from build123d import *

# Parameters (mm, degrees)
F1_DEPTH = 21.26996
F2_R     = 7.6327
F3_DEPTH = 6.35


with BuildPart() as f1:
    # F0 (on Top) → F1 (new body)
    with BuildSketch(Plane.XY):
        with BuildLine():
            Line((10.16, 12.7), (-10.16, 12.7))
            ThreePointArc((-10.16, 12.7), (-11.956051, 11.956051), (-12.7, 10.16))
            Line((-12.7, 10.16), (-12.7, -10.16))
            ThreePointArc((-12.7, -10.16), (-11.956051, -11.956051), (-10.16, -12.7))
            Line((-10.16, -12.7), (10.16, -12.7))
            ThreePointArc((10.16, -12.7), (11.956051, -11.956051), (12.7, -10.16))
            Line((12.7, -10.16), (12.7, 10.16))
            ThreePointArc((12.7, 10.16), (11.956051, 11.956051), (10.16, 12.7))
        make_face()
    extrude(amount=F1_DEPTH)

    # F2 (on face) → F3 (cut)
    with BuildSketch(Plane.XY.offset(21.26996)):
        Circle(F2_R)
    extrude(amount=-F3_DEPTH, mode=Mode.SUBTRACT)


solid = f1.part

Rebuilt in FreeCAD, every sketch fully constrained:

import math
import FreeCAD as App
import Part
import Sketcher

V = App.Vector
Q = App.Units.Quantity

doc = App.newDocument("Part")
body = doc.addObject("PartDesign::Body", "Body")

sketch1 = body.newObject("Sketcher::SketchObject", "Sketch")
sketch1.AttachmentSupport = (doc.getObject("XY_Plane"), [""])
sketch1.MapMode = "FlatFace"
sketch1.addGeometry(Part.LineSegment(V(10.2, 12.7, 0), V(-10.2, 12.7, 0)), False)
sketch1.addGeometry(Part.ArcOfCircle(Part.Circle(V(-10.2, 10.2, 0), V(0, 0, 1), 2.5), math.radians(90), math.radians(180)), False)
sketch1.addGeometry(Part.LineSegment(V(-12.7, 10.2, 0), V(-12.7, -10.2, 0)), False)
sketch1.addGeometry(Part.ArcOfCircle(Part.Circle(V(-10.2, -10.2, 0), V(0, 0, 1), 2.5), math.radians(-180), math.radians(-90)), False)
sketch1.addGeometry(Part.LineSegment(V(-10.2, -12.7, 0), V(10.2, -12.7, 0)), False)
sketch1.addGeometry(Part.ArcOfCircle(Part.Circle(V(10.2, -10.2, 0), V(0, 0, 1), 2.5), math.radians(-90), math.radians(0)), False)
sketch1.addGeometry(Part.LineSegment(V(12.7, -10.2, 0), V(12.7, 10.2, 0)), False)
sketch1.addGeometry(Part.ArcOfCircle(Part.Circle(V(10.2, 10.2, 0), V(0, 0, 1), 2.5), math.radians(0), math.radians(90)), False)
sketch1.addConstraint(Sketcher.Constraint("Tangent", 0, 2, 1, 1))
sketch1.addConstraint(Sketcher.Constraint("Tangent", 1, 2, 2, 1))
sketch1.addConstraint(Sketcher.Constraint("Tangent", 2, 2, 3, 1))
sketch1.addConstraint(Sketcher.Constraint("Tangent", 3, 2, 4, 1))
sketch1.addConstraint(Sketcher.Constraint("Tangent", 4, 2, 5, 1))
sketch1.addConstraint(Sketcher.Constraint("Tangent", 5, 2, 6, 1))
sketch1.addConstraint(Sketcher.Constraint("Tangent", 6, 2, 7, 1))
sketch1.addConstraint(Sketcher.Constraint("Tangent", 7, 2, 0, 1))
sketch1.addConstraint(Sketcher.Constraint("Horizontal", 0))
sketch1.addConstraint(Sketcher.Constraint("Vertical", 2))
sketch1.addConstraint(Sketcher.Constraint("Horizontal", 4))
sketch1.addConstraint(Sketcher.Constraint("Vertical", 6))
sketch1.addConstraint(Sketcher.Constraint("Equal", 1, 3))
sketch1.addConstraint(Sketcher.Constraint("Equal", 3, 5))
sketch1.addConstraint(Sketcher.Constraint("Equal", 5, 7))
sketch1.addConstraint(Sketcher.Constraint("Symmetric", 1, 3, 5, 3, -1, 1))
sketch1.addConstraint(Sketcher.Constraint("Equal", 4, 2))
sketch1.addConstraint(Sketcher.Constraint("Radius", 1, Q("0.1 in")))
sketch1.addConstraint(Sketcher.Constraint("DistanceX", 0, 2, 0, 1, Q("0.8 in")))
pad1 = body.newObject("PartDesign::Pad", "Pad")
pad1.Profile = sketch1
pad1.Length = Q("0.8374 in")

sketch2 = body.newObject("Sketcher::SketchObject", "Sketch001")
sketch2.AttachmentSupport = (doc.getObject("XY_Plane"), [""])
sketch2.MapMode = "FlatFace"
sketch2.AttachmentOffset = App.Placement(V(0, 0, 0.8374 * 25.4), App.Rotation())
sketch2.addGeometry(Part.Circle(V(0, 0, 0), V(0, 0, 1), 8), False)
sketch2.addConstraint(Sketcher.Constraint("Coincident", 0, 3, -1, 1))
sketch2.addConstraint(Sketcher.Constraint("Diameter", 0, Q("0.601 in")))
pocket1 = body.newObject("PartDesign::Pocket", "Pocket")
pocket1.Profile = sketch2
pocket1.Length = Q("0.25 in")

doc.recompute()
